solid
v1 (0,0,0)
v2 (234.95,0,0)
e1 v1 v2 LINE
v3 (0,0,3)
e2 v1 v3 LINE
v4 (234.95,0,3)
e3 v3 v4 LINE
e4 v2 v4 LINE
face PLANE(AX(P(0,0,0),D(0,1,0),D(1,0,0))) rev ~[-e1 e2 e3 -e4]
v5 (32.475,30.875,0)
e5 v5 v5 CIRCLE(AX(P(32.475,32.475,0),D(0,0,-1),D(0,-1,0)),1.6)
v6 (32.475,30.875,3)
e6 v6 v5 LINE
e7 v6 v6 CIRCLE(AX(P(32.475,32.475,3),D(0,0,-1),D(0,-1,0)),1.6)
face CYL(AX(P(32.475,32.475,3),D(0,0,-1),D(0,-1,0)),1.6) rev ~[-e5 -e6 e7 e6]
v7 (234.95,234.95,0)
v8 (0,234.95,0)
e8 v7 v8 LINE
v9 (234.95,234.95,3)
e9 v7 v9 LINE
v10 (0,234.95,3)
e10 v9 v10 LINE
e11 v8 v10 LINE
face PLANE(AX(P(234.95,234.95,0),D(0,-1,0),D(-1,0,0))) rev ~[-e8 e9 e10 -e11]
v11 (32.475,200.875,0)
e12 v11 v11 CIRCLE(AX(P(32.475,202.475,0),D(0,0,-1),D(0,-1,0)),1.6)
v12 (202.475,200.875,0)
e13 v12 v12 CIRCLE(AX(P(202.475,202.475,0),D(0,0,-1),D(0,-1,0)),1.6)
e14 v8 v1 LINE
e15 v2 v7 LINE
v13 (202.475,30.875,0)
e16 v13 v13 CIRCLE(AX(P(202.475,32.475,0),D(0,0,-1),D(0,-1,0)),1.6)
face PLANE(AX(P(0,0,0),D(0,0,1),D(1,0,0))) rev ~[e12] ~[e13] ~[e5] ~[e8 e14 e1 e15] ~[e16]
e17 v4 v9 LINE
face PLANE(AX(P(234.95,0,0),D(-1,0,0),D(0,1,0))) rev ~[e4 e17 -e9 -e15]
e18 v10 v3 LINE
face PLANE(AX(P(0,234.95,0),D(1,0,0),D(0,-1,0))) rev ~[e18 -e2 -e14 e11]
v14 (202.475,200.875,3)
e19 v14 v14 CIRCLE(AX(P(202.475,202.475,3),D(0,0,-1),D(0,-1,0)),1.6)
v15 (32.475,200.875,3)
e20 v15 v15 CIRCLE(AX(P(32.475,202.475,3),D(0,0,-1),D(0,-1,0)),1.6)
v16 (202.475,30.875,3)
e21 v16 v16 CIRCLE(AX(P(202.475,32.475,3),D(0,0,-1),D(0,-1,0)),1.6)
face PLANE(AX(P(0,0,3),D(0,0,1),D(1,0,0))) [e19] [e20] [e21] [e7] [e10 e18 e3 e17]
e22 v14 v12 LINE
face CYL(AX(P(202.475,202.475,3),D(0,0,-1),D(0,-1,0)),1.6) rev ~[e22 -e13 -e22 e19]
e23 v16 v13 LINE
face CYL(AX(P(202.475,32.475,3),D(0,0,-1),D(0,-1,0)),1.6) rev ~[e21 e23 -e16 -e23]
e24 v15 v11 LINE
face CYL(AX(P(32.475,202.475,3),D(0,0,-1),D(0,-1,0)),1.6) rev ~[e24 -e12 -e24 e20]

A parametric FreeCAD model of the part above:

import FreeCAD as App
import Part
import Sketcher

V = App.Vector
Q = App.Units.Quantity


def add_polygon(sketch, points):
    """Adds a closed chain of lines whose ends are joined by coincident constraints."""
    first, n = sketch.GeometryCount, len(points)
    for a, b in zip(points, points[1:] + points[:1]):
        sketch.addGeometry(Part.LineSegment(App.Vector(*a, 0), App.Vector(*b, 0)), False)
    for i in range(n):
        sketch.addConstraint(Sketcher.Constraint("Coincident", first + i, 2, first + (i + 1) % n, 1))

doc = App.newDocument("Part")
body = doc.addObject("PartDesign::Body", "Body")

sketch1 = doc.addObject("Sketcher::SketchObject", "Sketch")
body.addObject(sketch1)
sketch1.AttachmentSupport = (doc.XY_Plane, [""])
sketch1.MapMode = "FlatFace"
add_polygon(sketch1, [(0, 235), (0, 0), (235, 0), (235, 235)])
sketch1.addConstraint([
    Sketcher.Constraint("Vertical", 0),
    Sketcher.Constraint("Horizontal", 1),
    Sketcher.Constraint("Vertical", 2),
    Sketcher.Constraint("Horizontal", 3),
    Sketcher.Constraint("Coincident", 0, 2, -1, 1),
    Sketcher.Constraint("Equal", 3, 0),
    Sketcher.Constraint("DistanceX", 1, 1, 1, 2, Q("234.95 mm")),
])
pad1 = doc.addObject("PartDesign::Pad", "Pad")
body.addObject(pad1)
pad1.Profile = sketch1
pad1.Length = 3

sketch2 = doc.addObject("Sketcher::SketchObject", "Sketch001")
body.addObject(sketch2)
sketch2.AttachmentSupport = (doc.XY_Plane, [""])
sketch2.MapMode = "FlatFace"
sketch2.AttachmentOffset = App.Placement(V(0, 0, 3), App.Rotation())
sketch2.addGeometry([
    Part.Circle(V(32.5, 202.5, 0), V(0, 0, 1), 1.6),
    Part.Circle(V(202.5, 202.5, 0), V(0, 0, 1), 1.6),
    Part.Circle(V(202.5, 32.5, 0), V(0, 0, 1), 1.6),
    Part.Circle(V(32.5, 32.5, 0), V(0, 0, 1), 1.6),
], False)
sketch2.addConstraint([
    Sketcher.Constraint("Equal", 0, 1),
    Sketcher.Constraint("Equal", 1, 2),
    Sketcher.Constraint("Equal", 2, 3),
    Sketcher.Constraint("Horizontal", 0, 3, 1, 3),
    Sketcher.Constraint("Horizontal", 2, 3, 3, 3),
    Sketcher.Constraint("Vertical", 1, 3, 2, 3),
    Sketcher.Constraint("Vertical", 0, 3, 3, 3),
    Sketcher.Constraint("Diameter", 0, Q("3.2 mm")),
    Sketcher.Constraint("DistanceX", 0, 3, 1, 3, Q("170 mm")),
    Sketcher.Constraint("DistanceY", 2, 3, 1, 3, Q("170 mm")),
    Sketcher.Constraint("DistanceX", -1, 1, 0, 3, Q("32.475 mm")),
    Sketcher.Constraint("DistanceY", -1, 1, 0, 3, Q("202.475 mm")),
])
doc.recompute()
hole = doc.addObject("PartDesign::Hole", "Hole")
body.addObject(hole)
hole.Profile = sketch2
hole.ThreadType = "None"
hole.Diameter = 3.2
hole.DepthType = "ThroughAll"

doc.recompute()
